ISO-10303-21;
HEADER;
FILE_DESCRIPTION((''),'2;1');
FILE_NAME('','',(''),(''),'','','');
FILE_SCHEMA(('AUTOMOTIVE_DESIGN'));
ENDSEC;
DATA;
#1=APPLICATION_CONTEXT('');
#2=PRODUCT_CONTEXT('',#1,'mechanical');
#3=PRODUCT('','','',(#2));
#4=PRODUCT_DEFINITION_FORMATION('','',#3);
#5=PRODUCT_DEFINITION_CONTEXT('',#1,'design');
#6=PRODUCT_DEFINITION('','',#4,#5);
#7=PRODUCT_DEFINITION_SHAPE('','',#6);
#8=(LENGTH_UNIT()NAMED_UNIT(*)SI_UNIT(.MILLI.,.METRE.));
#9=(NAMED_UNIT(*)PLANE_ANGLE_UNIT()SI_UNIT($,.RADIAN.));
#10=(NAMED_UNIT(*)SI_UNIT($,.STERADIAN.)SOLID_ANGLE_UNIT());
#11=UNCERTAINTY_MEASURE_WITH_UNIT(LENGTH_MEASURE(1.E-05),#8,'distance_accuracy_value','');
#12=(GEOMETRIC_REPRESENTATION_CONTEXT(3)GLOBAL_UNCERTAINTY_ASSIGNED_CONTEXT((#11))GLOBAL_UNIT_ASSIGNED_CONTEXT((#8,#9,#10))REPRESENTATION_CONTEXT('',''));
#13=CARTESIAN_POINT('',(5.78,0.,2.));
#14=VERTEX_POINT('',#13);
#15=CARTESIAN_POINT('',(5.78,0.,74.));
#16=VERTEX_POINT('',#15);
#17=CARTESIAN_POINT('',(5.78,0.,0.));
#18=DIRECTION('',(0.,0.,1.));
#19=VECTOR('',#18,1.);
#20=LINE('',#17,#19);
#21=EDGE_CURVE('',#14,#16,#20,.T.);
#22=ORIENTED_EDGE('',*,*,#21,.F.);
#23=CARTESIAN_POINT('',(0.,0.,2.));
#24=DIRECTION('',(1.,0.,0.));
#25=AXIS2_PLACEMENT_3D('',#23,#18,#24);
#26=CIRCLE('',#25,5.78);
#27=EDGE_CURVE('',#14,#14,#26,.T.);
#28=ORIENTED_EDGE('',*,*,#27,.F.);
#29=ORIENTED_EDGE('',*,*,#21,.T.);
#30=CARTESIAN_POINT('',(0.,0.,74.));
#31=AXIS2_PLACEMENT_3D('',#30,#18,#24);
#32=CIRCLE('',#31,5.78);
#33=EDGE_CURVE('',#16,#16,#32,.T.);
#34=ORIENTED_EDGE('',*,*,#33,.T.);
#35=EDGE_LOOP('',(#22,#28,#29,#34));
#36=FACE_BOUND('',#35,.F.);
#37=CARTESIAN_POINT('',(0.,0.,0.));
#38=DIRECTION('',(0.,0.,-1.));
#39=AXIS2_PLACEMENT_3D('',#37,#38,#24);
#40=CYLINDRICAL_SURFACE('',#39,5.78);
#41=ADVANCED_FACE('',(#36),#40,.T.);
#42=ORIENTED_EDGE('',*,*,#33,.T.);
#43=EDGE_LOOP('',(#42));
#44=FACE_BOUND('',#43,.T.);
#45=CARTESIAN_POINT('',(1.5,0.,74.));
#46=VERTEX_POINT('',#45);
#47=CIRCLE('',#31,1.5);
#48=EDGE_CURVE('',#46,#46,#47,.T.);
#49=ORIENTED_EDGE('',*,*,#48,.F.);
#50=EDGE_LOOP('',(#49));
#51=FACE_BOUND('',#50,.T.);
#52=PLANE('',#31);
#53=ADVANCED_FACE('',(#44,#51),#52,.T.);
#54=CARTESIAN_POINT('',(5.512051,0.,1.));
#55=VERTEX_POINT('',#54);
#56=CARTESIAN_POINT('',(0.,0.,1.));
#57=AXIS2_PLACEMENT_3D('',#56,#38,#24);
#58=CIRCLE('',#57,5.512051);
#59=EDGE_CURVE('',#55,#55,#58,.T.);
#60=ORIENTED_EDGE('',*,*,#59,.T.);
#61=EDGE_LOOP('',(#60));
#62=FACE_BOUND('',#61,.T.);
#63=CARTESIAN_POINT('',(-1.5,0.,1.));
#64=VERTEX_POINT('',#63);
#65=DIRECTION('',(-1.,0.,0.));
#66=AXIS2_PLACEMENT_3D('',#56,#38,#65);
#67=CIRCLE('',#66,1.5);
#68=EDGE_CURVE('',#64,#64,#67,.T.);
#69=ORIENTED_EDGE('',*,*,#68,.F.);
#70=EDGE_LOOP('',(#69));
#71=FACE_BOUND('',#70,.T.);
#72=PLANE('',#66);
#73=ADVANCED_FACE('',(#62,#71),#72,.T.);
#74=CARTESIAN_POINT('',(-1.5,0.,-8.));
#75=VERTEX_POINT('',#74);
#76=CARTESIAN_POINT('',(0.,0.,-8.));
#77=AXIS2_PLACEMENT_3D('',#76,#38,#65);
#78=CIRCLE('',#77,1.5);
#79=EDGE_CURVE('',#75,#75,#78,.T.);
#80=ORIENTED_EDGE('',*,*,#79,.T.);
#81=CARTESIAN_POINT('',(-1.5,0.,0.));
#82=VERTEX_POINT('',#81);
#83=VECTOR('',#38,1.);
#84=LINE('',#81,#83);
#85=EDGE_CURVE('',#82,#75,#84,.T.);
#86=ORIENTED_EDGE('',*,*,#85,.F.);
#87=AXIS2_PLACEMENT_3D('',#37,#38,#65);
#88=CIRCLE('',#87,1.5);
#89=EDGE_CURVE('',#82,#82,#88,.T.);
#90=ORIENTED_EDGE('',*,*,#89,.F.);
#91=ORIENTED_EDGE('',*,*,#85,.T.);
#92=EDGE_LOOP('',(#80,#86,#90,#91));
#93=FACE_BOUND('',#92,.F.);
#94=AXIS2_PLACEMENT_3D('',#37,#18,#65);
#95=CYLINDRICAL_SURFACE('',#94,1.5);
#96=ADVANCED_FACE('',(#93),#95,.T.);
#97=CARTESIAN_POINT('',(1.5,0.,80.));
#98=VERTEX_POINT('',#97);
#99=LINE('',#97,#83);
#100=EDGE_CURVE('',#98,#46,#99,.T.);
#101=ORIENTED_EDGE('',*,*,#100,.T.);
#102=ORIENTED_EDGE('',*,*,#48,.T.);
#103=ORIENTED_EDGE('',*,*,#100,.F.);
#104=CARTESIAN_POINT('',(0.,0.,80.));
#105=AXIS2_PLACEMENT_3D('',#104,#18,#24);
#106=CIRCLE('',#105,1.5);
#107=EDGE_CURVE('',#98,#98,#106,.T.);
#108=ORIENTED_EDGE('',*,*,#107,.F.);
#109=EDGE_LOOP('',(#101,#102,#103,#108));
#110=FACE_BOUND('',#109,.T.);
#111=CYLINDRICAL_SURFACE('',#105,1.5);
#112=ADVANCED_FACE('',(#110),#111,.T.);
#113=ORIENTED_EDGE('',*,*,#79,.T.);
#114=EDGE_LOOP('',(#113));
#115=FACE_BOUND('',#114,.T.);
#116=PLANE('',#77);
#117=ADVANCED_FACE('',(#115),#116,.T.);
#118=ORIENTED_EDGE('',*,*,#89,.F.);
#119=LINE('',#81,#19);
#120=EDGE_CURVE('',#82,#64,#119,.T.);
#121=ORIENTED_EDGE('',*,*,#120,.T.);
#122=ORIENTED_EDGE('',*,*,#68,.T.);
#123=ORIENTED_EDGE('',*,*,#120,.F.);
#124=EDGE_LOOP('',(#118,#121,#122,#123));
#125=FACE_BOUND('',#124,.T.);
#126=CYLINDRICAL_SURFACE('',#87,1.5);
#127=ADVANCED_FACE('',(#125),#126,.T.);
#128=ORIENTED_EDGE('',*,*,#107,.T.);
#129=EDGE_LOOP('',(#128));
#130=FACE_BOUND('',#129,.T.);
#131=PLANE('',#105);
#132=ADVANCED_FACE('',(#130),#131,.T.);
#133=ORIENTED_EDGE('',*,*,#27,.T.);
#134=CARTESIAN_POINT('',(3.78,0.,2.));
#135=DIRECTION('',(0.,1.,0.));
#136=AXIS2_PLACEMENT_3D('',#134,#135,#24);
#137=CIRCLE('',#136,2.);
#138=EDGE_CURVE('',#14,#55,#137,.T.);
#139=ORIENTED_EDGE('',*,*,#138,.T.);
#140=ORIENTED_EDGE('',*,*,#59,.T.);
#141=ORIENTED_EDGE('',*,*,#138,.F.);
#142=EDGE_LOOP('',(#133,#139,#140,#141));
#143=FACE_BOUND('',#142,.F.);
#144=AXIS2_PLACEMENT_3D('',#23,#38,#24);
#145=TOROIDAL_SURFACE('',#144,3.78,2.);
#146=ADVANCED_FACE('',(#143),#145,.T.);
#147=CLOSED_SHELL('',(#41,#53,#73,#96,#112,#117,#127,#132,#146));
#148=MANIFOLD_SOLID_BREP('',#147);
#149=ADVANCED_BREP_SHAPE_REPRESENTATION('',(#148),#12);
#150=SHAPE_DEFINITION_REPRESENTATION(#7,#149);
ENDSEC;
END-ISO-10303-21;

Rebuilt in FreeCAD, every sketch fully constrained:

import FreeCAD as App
import Part
import Sketcher
Q = App.Units.Quantity


def edges_at(feature, points):
    """Names of the edges that pass closest to the given points."""
    edges = feature.Shape.Edges
    near = lambda p: min(range(len(edges)), key=lambda i: edges[i].distToShape(Part.Vertex(*p))[0])
    return sorted({f"Edge{near(p) + 1}" for p in points})

doc = App.newDocument("Part")
params = doc.addObject("Spreadsheet::Sheet", "Params")
for row, (alias, value) in enumerate([
    ("sketch1_diameter", "11.56 mm"),
    ("pad1_length", "80 mm"),
    ("fillet_radius", "2 mm"),
    ("sketch2_diameter", "3 mm"),
    ("sketch2_diameter2", "11.56 mm"),
    ("pocket1_length", "6 mm"),
    ("sketch3_diameter", "3 mm"),
    ("sketch3_diameter2", "11.56 mm"),
    ("pocket2_length", "1 mm"),
    ("sketch4_diameter", "3 mm"),
    ("pad2_length", "8 mm"),
], start=1):
    params.set(f"A{row}", alias)
    params.set(f"B{row}", "=" + value)
    params.setAlias(f"B{row}", alias)

body = doc.addObject("PartDesign::Body", "Body")

# Sketch on XY plane
sketch1 = doc.addObject("Sketcher::SketchObject", "Sketch")
body.addObject(sketch1)
sketch1.AttachmentSupport = (doc.XY_Plane, [""])
sketch1.MapMode = "FlatFace"
sketch1.addGeometry(Part.Circle(App.Vector(0, 0, 0), App.Vector(0, 0, 1), 6), False)
sketch1.addConstraint([
    Sketcher.Constraint("Coincident", 0, 3, -1, 1),
    Sketcher.Constraint("Diameter", 0, Q("11.56 mm")),
])
sketch1.setExpression("Constraints[1]", "Params.sketch1_diameter")
pad1 = doc.addObject("PartDesign::Pad", "Pad")
body.addObject(pad1)
pad1.Profile = sketch1
pad1.setExpression("Length", "Params.pad1_length")
doc.recompute()

fillet = doc.addObject("PartDesign::Fillet", "Fillet")
body.addObject(fillet)
fillet.Base = (pad1, edges_at(pad1, [(-5.78, 0, 80), (-5.78, 0, 0)]))
fillet.setExpression("Radius", "Params.fillet_radius")

# Sketch on XY plane
sketch2 = doc.addObject("Sketcher::SketchObject", "Sketch001")
body.addObject(sketch2)
sketch2.AttachmentSupport = (doc.XY_Plane, [""])
sketch2.MapMode = "FlatFace"
sketch2.AttachmentOffset = App.Placement(App.Vector(0, 0, 80), App.Rotation())
sketch2.addGeometry([
    Part.Circle(App.Vector(0, 0, 0), App.Vector(0, 0, 1), 5.8),
    Part.Circle(App.Vector(0, 0, 0), App.Vector(0, 0, 1), 1.5),
], False)
sketch2.addConstraint([
    Sketcher.Constraint("Coincident", 0, 3, -1, 1),
    Sketcher.Constraint("Coincident", 1, 3, -1, 1),
    Sketcher.Constraint("Diameter", 1, Q("3 mm")),
    Sketcher.Constraint("Diameter", 0, Q("11.56 mm")),
])
sketch2.setExpression("Constraints[2]", "Params.sketch2_diameter")
sketch2.setExpression("Constraints[3]", "Params.sketch2_diameter2")
pocket1 = doc.addObject("PartDesign::Pocket", "Pocket")
body.addObject(pocket1)
pocket1.Profile = sketch2
pocket1.setExpression("Length", "Params.pocket1_length")

# Sketch on XY plane
sketch3 = doc.addObject("Sketcher::SketchObject", "Sketch002")
body.addObject(sketch3)
sketch3.AttachmentSupport = (doc.XY_Plane, [""])
sketch3.MapMode = "FlatFace"
sketch3.addGeometry([
    Part.Circle(App.Vector(0, 0, 0), App.Vector(0, 0, 1), 5.8),
    Part.Circle(App.Vector(0, 0, 0), App.Vector(0, 0, 1), 1.5),
], False)
sketch3.addConstraint([
    Sketcher.Constraint("Coincident", 0, 3, -1, 1),
    Sketcher.Constraint("Coincident", 1, 3, -1, 1),
    Sketcher.Constraint("Diameter", 1, Q("3 mm")),
    Sketcher.Constraint("Diameter", 0, Q("11.56 mm")),
])
sketch3.setExpression("Constraints[2]", "Params.sketch3_diameter")
sketch3.setExpression("Constraints[3]", "Params.sketch3_diameter2")
pocket2 = doc.addObject("PartDesign::Pocket", "Pocket001")
body.addObject(pocket2)
pocket2.Profile = sketch3
pocket2.setExpression("Length", "Params.pocket2_length")
pocket2.Reversed = True

# Sketch on XY plane
sketch4 = doc.addObject("Sketcher::SketchObject", "Sketch003")
body.addObject(sketch4)
sketch4.AttachmentSupport = (doc.XY_Plane, [""])
sketch4.MapMode = "FlatFace"
sketch4.addGeometry(Part.Circle(App.Vector(0, 0, 0), App.Vector(0, 0, 1), 1.5), False)
sketch4.addConstraint([
    Sketcher.Constraint("Coincident", 0, 3, -1, 1),
    Sketcher.Constraint("Diameter", 0, Q("3 mm")),
])
sketch4.setExpression("Constraints[1]", "Params.sketch4_diameter")
pad2 = doc.addObject("PartDesign::Pad", "Pad001")
body.addObject(pad2)
pad2.Profile = sketch4
pad2.setExpression("Length", "Params.pad2_length")
pad2.Reversed = True

doc.recompute()
